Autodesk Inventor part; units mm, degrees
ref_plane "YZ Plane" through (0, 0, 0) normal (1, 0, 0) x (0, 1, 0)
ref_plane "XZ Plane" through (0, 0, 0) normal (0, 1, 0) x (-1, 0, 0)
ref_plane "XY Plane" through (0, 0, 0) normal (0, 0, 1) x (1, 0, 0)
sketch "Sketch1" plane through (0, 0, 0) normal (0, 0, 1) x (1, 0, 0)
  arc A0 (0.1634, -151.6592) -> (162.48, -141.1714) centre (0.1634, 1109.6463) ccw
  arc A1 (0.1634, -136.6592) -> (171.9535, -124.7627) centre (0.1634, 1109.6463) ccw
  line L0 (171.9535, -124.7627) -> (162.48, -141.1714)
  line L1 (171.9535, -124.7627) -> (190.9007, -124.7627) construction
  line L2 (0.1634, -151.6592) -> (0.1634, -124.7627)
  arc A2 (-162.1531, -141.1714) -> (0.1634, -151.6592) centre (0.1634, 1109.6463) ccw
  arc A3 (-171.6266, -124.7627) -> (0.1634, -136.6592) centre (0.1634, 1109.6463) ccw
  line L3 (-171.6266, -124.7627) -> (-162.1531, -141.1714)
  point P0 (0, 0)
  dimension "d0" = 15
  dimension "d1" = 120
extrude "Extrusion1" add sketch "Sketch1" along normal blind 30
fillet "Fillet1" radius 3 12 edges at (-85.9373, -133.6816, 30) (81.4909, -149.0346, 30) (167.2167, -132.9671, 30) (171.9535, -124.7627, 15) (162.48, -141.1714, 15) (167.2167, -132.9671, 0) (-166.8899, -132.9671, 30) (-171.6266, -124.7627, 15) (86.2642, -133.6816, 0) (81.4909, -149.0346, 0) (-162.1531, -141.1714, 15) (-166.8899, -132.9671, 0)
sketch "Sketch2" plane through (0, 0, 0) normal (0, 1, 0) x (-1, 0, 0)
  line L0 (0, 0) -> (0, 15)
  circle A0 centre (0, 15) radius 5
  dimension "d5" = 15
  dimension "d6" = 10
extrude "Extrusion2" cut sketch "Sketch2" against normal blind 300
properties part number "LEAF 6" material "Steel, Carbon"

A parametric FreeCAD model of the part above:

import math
import FreeCAD as App
import Part
import Sketcher
Q = App.Units.Quantity

doc = App.newDocument("Part")
body = doc.addObject("PartDesign::Body", "Body")

# Sketch on XY plane
sketch1 = body.newObject("Sketcher::SketchObject", "Sketch")
sketch1.AttachmentSupport = (doc.getObject("XY_Plane"), [""])
sketch1.MapMode = "FlatFace"
sketch1.addGeometry([
    Part.ArcOfCircle(Part.Circle(App.Vector(0.163347, 1109.647846, 0), App.Vector(0, 0, 1), 1246.307046), math.radians(-89.999998), math.radians(-82.077162)),  # 0
    Part.ArcOfCircle(Part.Circle(App.Vector(0.163539, 1109.647633, 0), App.Vector(0, 0, 1), 1246.306833), math.radians(-97.922839), math.radians(-90.000006)),  # 1
    Part.LineSegment(App.Vector(-171.6266, -124.7627, 0), App.Vector(-162.1531, -141.1714, 0)),  # 2
    Part.ArcOfCircle(Part.Circle(App.Vector(0.1634, 1109.6463, 0), App.Vector(0, 0, 1), 1261.3055), math.radians(-97.393858), math.radians(-90)),  # 3
    Part.ArcOfCircle(Part.Circle(App.Vector(0.163299, 1109.649437, 0), App.Vector(0, 0, 1), 1261.308637), math.radians(-89.999995), math.radians(-82.606152)),  # 4
    Part.LineSegment(App.Vector(162.48, -141.1714, 0), App.Vector(171.9535, -124.7627, 0)),  # 5
], False)
sketch1.addConstraint([
    Sketcher.Constraint("Coincident", 0, 1, 1, 2),
    Sketcher.Constraint("Coincident", 1, 1, 2, 1),
    Sketcher.Constraint("Coincident", 2, 2, 3, 1),
    Sketcher.Constraint("Coincident", 3, 2, 4, 1),
    Sketcher.Constraint("Coincident", 4, 2, 5, 1),
    Sketcher.Constraint("Coincident", 5, 2, 0, 2),
    Sketcher.Constraint("Coincident", 1, 3, 0, 3),
    Sketcher.Constraint("DistanceY", 3, 2, 0, 1, Q("15 mm")),
    Sketcher.Constraint("Radius", 0, Q("1246.307 mm")),
    Sketcher.Constraint("DistanceX", 4, 3, 3, 3, Q("0 mm")),
    Sketcher.Constraint("DistanceX", 4, 3, 0, 1, Q("0 mm")),
    Sketcher.Constraint("Radius", 3, Q("1261.3055 mm")),
    Sketcher.Constraint("Radius", 4, Q("1261.3086 mm")),
    Sketcher.Constraint("DistanceX", 1, 1, 3, 2, Q("171.79 mm")),
    Sketcher.Constraint("Distance", 2, Q("18.947 mm")),
    Sketcher.Constraint("Distance", 5, Q("18.947 mm")),
    Sketcher.Constraint("DistanceX", 2, 2, -1, 1, Q("162.153 mm")),
    Sketcher.Constraint("DistanceY", 2, 2, 1, 3, Q("1250.819 mm")),
    Sketcher.Constraint("DistanceX", -1, 1, 0, 3, Q("0.1633 mm")),
    Sketcher.Constraint("DistanceY", -1, 1, 0, 3, Q("1109.6478 mm")),
    Sketcher.Constraint("DistanceX", -1, 1, 5, 2, Q("171.9535 mm")),
])
pad1 = body.newObject("PartDesign::Pad", "Pad")
pad1.Profile = sketch1
pad1.Length = 30
doc.recompute()

fillet = body.newObject("PartDesign::Fillet", "Fillet")
fillet.Base = (pad1, ["Edge1"])
fillet.UseAllEdges = True
fillet.Radius = 3

# Sketch on XZ plane
sketch2 = body.newObject("Sketcher::SketchObject", "Sketch001")
sketch2.AttachmentSupport = (doc.getObject("XZ_Plane"), [""])
sketch2.MapMode = "FlatFace"
sketch2.addGeometry(Part.Circle(App.Vector(0, 15, 0), App.Vector(0, 0, 1), 5), False)
sketch2.addConstraint([
    Sketcher.Constraint("PointOnObject", 0, 3, -2),
    Sketcher.Constraint("Diameter", 0, Q("10 mm")),
    Sketcher.Constraint("DistanceY", -1, 1, 0, 3, Q("15 mm")),
])
pocket1 = body.newObject("PartDesign::Pocket", "Pocket")
pocket1.Profile = sketch2
pocket1.Length = 300
pocket1.Reversed = True

doc.recompute()
